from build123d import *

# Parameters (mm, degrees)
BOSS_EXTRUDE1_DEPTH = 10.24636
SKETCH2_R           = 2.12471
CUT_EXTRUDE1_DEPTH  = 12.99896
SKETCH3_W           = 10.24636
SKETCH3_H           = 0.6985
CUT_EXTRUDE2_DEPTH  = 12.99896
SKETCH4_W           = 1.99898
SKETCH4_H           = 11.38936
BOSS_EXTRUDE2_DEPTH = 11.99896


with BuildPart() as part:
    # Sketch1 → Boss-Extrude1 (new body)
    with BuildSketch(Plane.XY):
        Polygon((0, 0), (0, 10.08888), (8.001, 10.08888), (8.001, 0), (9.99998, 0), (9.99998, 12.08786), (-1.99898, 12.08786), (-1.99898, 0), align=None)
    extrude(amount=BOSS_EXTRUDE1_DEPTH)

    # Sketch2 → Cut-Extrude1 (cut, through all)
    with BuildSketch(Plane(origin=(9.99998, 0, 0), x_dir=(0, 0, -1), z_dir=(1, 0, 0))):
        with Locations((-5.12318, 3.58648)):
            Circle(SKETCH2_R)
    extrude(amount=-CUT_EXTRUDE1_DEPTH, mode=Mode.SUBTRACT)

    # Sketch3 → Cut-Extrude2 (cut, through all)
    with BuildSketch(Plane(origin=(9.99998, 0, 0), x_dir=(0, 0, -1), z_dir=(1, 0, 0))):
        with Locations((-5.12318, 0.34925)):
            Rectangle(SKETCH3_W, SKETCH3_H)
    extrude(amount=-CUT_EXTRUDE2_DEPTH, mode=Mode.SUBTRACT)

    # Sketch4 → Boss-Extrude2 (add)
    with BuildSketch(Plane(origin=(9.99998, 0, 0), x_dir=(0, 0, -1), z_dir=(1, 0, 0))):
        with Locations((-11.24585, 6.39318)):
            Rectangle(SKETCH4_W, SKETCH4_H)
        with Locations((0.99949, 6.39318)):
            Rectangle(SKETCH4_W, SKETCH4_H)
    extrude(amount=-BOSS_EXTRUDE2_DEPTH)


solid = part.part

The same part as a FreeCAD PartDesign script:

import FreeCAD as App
import Part
import Sketcher
Q = App.Units.Quantity

doc = App.newDocument("Part")
params = doc.addObject("Spreadsheet::Sheet", "Params")
for row, (alias, value) in enumerate([
    ("sketch1_width", "0.315 in"),
    ("pad1_length", "0.4034 in"),
    ("pad2_length", "0.4724 in"),
], start=1):
    params.set(f"A{row}", alias)
    params.set(f"B{row}", "=" + value)
    params.setAlias(f"B{row}", alias)

body = doc.addObject("PartDesign::Body", "Body")

# Sketch on XY plane
sketch1 = doc.addObject("Sketcher::SketchObject", "Sketch")
body.addObject(sketch1)
sketch1.AttachmentSupport = (doc.XY_Plane, [""])
sketch1.MapMode = "FlatFace"
sketch1.addGeometry(Part.LineSegment(App.Vector(0, 0, 0), App.Vector(0, 10.1, 0)), False)
sketch1.addGeometry(Part.LineSegment(App.Vector(0, 10.1, 0), App.Vector(8, 10.1, 0)), False)
sketch1.addGeometry(Part.LineSegment(App.Vector(8, 10.1, 0), App.Vector(8, 0, 0)), False)
sketch1.addGeometry(Part.LineSegment(App.Vector(8, 0, 0), App.Vector(10, 0, 0)), False)
sketch1.addGeometry(Part.LineSegment(App.Vector(10, 0, 0), App.Vector(10, 12.1, 0)), False)
sketch1.addGeometry(Part.LineSegment(App.Vector(10, 12.1, 0), App.Vector(-2, 12.1, 0)), False)
sketch1.addGeometry(Part.LineSegment(App.Vector(-2, 12.1, 0), App.Vector(-2, 0, 0)), False)
sketch1.addGeometry(Part.LineSegment(App.Vector(-2, 0, 0), App.Vector(0, 0, 0)), False)
sketch1.addConstraint(Sketcher.Constraint("Coincident", 0, 2, 1, 1))
sketch1.addConstraint(Sketcher.Constraint("Coincident", 1, 2, 2, 1))
sketch1.addConstraint(Sketcher.Constraint("Coincident", 2, 2, 3, 1))
sketch1.addConstraint(Sketcher.Constraint("Coincident", 3, 2, 4, 1))
sketch1.addConstraint(Sketcher.Constraint("Coincident", 4, 2, 5, 1))
sketch1.addConstraint(Sketcher.Constraint("Coincident", 5, 2, 6, 1))
sketch1.addConstraint(Sketcher.Constraint("Coincident", 6, 2, 7, 1))
sketch1.addConstraint(Sketcher.Constraint("Coincident", 7, 2, 0, 1))
sketch1.addConstraint(Sketcher.Constraint("Vertical", 0))
sketch1.addConstraint(Sketcher.Constraint("Horizontal", 1))
sketch1.addConstraint(Sketcher.Constraint("Vertical", 2))
sketch1.addConstraint(Sketcher.Constraint("Horizontal", 3))
sketch1.addConstraint(Sketcher.Constraint("Vertical", 4))
sketch1.addConstraint(Sketcher.Constraint("Horizontal", 5))
sketch1.addConstraint(Sketcher.Constraint("Vertical", 6))
sketch1.addConstraint(Sketcher.Constraint("Horizontal", 7))
sketch1.addConstraint(Sketcher.Constraint("Coincident", 7, 2, -1, 1))
sketch1.addConstraint(Sketcher.Constraint("PointOnObject", 2, 2, -1))
sketch1.addConstraint(Sketcher.Constraint("Equal", 3, 7))
sketch1.addConstraint(Sketcher.Constraint("DistanceX", 1, 1, 1, 2, Q("0.315 in")))
sketch1.addConstraint(Sketcher.Constraint("DistanceX", 3, 1, 3, 2, Q("0.0787 in")))
sketch1.addConstraint(Sketcher.Constraint("DistanceY", 0, 1, 0, 2, Q("0.3972 in")))
sketch1.addConstraint(Sketcher.Constraint("DistanceY", 4, 1, 4, 2, Q("0.4759 in")))
sketch1.setExpression("Constraints[19]", "Params.sketch1_width")
pad1 = doc.addObject("PartDesign::Pad", "Pad")
body.addObject(pad1)
pad1.Profile = sketch1
pad1.setExpression("Length", "Params.pad1_length")

# Sketch on YZ plane
sketch2 = doc.addObject("Sketcher::SketchObject", "Sketch001")
body.addObject(sketch2)
sketch2.AttachmentSupport = (doc.YZ_Plane, [""])
sketch2.MapMode = "FlatFace"
sketch2.AttachmentOffset = App.Placement(App.Vector(0, 0, 0.3937 * 25.4), App.Rotation())
sketch2.addGeometry(Part.Circle(App.Vector(3.6, 5.1, 0), App.Vector(0, 0, 1), 2.1), False)
sketch2.addConstraint(Sketcher.Constraint("Diameter", 0, Q("0.1673 in")))
sketch2.addConstraint(Sketcher.Constraint("DistanceX", -1, 1, 0, 3, Q("0.1412 in")))
sketch2.addConstraint(Sketcher.Constraint("DistanceY", -1, 1, 0, 3, Q("0.2017 in")))
pocket1 = doc.addObject("PartDesign::Pocket", "Pocket")
body.addObject(pocket1)
pocket1.Profile = sketch2
pocket1.Type = "ThroughAll"

# Sketch on YZ plane
sketch3 = doc.addObject("Sketcher::SketchObject", "Sketch002")
body.addObject(sketch3)
sketch3.AttachmentSupport = (doc.YZ_Plane, [""])
sketch3.MapMode = "FlatFace"
sketch3.AttachmentOffset = App.Placement(App.Vector(0, 0, 0.3937 * 25.4), App.Rotation())
sketch3.addGeometry(Part.LineSegment(App.Vector(0.7, 10.2, 0), App.Vector(0, 10.2, 0)), False)
sketch3.addGeometry(Part.LineSegment(App.Vector(0, 10.2, 0), App.Vector(0, 0, 0)), False)
sketch3.addGeometry(Part.LineSegment(App.Vector(0, 0, 0), App.Vector(0.7, 0, 0)), False)
sketch3.addGeometry(Part.LineSegment(App.Vector(0.7, 0, 0), App.Vector(0.7, 10.2, 0)), False)
sketch3.addConstraint(Sketcher.Constraint("Coincident", 0, 2, 1, 1))
sketch3.addConstraint(Sketcher.Constraint("Coincident", 1, 2, 2, 1))
sketch3.addConstraint(Sketcher.Constraint("Coincident", 2, 2, 3, 1))
sketch3.addConstraint(Sketcher.Constraint("Coincident", 3, 2, 0, 1))
sketch3.addConstraint(Sketcher.Constraint("Horizontal", 0))
sketch3.addConstraint(Sketcher.Constraint("Vertical", 1))
sketch3.addConstraint(Sketcher.Constraint("Horizontal", 2))
sketch3.addConstraint(Sketcher.Constraint("Vertical", 3))
sketch3.addConstraint(Sketcher.Constraint("Coincident", 1, 2, -1, 1))
sketch3.addConstraint(Sketcher.Constraint("DistanceX", 0, 2, 0, 1, Q("0.0275 in")))
sketch3.addConstraint(Sketcher.Constraint("DistanceY", 1, 2, 1, 1, Q("0.4034 in")))
pocket2 = doc.addObject("PartDesign::Pocket", "Pocket001")
body.addObject(pocket2)
pocket2.Profile = sketch3
pocket2.Type = "ThroughAll"

# Sketch on YZ plane
sketch4 = doc.addObject("Sketcher::SketchObject", "Sketch003")
body.addObject(sketch4)
sketch4.AttachmentSupport = (doc.YZ_Plane, [""])
sketch4.MapMode = "FlatFace"
sketch4.AttachmentOffset = App.Placement(App.Vector(0, 0, 0.3937 * 25.4), App.Rotation())
sketch4.addGeometry(Part.LineSegment(App.Vector(12.1, 12.2, 0), App.Vector(0.7, 12.2, 0)), False)
sketch4.addGeometry(Part.LineSegment(App.Vector(0.7, 12.2, 0), App.Vector(0.7, 10.2, 0)), False)
sketch4.addGeometry(Part.LineSegment(App.Vector(0.7, 10.2, 0), App.Vector(12.1, 10.2, 0)), False)
sketch4.addGeometry(Part.LineSegment(App.Vector(12.1, 10.2, 0), App.Vector(12.1, 12.2, 0)), False)
sketch4.addGeometry(Part.LineSegment(App.Vector(12.1, 0, 0), App.Vector(0.7, 0, 0)), False)
sketch4.addGeometry(Part.LineSegment(App.Vector(0.7, 0, 0), App.Vector(0.7, -2, 0)), False)
sketch4.addGeometry(Part.LineSegment(App.Vector(0.7, -2, 0), App.Vector(12.1, -2, 0)), False)
sketch4.addGeometry(Part.LineSegment(App.Vector(12.1, -2, 0), App.Vector(12.1, 0, 0)), False)
sketch4.addConstraint(Sketcher.Constraint("Coincident", 0, 2, 1, 1))
sketch4.addConstraint(Sketcher.Constraint("Coincident", 1, 2, 2, 1))
sketch4.addConstraint(Sketcher.Constraint("Coincident", 2, 2, 3, 1))
sketch4.addConstraint(Sketcher.Constraint("Coincident", 3, 2, 0, 1))
sketch4.addConstraint(Sketcher.Constraint("Coincident", 4, 2, 5, 1))
sketch4.addConstraint(Sketcher.Constraint("Coincident", 5, 2, 6, 1))
sketch4.addConstraint(Sketcher.Constraint("Coincident", 6, 2, 7, 1))
sketch4.addConstraint(Sketcher.Constraint("Coincident", 7, 2, 4, 1))
sketch4.addConstraint(Sketcher.Constraint("Horizontal", 0))
sketch4.addConstraint(Sketcher.Constraint("Vertical", 1))
sketch4.addConstraint(Sketcher.Constraint("Horizontal", 2))
sketch4.addConstraint(Sketcher.Constraint("Vertical", 3))
sketch4.addConstraint(Sketcher.Constraint("Horizontal", 4))
sketch4.addConstraint(Sketcher.Constraint("Vertical", 5))
sketch4.addConstraint(Sketcher.Constraint("Horizontal", 6))
sketch4.addConstraint(Sketcher.Constraint("Vertical", 7))
sketch4.addConstraint(Sketcher.Constraint("PointOnObject", 4, 2, -1))
sketch4.addConstraint(Sketcher.Constraint("Vertical", 1, 2, 4, 2))
sketch4.addConstraint(Sketcher.Constraint("Vertical", 3, 2, 6, 2))
sketch4.addConstraint(Sketcher.Constraint("Equal", 3, 5))
sketch4.addConstraint(Sketcher.Constraint("DistanceX", 0, 2, 0, 1, Q("0.4484 in")))
sketch4.addConstraint(Sketcher.Constraint("DistanceY", 1, 2, 1, 1, Q("0.0787 in")))
sketch4.addConstraint(Sketcher.Constraint("DistanceX", -1, 1, 0, 2, Q("0.0275 in")))
sketch4.addConstraint(Sketcher.Constraint("DistanceY", -1, 1, 0, 2, Q("0.4821 in")))
pad2 = doc.addObject("PartDesign::Pad", "Pad001")
body.addObject(pad2)
pad2.Profile = sketch4
pad2.setExpression("Length", "Params.pad2_length")
pad2.Reversed = True

doc.recompute()
